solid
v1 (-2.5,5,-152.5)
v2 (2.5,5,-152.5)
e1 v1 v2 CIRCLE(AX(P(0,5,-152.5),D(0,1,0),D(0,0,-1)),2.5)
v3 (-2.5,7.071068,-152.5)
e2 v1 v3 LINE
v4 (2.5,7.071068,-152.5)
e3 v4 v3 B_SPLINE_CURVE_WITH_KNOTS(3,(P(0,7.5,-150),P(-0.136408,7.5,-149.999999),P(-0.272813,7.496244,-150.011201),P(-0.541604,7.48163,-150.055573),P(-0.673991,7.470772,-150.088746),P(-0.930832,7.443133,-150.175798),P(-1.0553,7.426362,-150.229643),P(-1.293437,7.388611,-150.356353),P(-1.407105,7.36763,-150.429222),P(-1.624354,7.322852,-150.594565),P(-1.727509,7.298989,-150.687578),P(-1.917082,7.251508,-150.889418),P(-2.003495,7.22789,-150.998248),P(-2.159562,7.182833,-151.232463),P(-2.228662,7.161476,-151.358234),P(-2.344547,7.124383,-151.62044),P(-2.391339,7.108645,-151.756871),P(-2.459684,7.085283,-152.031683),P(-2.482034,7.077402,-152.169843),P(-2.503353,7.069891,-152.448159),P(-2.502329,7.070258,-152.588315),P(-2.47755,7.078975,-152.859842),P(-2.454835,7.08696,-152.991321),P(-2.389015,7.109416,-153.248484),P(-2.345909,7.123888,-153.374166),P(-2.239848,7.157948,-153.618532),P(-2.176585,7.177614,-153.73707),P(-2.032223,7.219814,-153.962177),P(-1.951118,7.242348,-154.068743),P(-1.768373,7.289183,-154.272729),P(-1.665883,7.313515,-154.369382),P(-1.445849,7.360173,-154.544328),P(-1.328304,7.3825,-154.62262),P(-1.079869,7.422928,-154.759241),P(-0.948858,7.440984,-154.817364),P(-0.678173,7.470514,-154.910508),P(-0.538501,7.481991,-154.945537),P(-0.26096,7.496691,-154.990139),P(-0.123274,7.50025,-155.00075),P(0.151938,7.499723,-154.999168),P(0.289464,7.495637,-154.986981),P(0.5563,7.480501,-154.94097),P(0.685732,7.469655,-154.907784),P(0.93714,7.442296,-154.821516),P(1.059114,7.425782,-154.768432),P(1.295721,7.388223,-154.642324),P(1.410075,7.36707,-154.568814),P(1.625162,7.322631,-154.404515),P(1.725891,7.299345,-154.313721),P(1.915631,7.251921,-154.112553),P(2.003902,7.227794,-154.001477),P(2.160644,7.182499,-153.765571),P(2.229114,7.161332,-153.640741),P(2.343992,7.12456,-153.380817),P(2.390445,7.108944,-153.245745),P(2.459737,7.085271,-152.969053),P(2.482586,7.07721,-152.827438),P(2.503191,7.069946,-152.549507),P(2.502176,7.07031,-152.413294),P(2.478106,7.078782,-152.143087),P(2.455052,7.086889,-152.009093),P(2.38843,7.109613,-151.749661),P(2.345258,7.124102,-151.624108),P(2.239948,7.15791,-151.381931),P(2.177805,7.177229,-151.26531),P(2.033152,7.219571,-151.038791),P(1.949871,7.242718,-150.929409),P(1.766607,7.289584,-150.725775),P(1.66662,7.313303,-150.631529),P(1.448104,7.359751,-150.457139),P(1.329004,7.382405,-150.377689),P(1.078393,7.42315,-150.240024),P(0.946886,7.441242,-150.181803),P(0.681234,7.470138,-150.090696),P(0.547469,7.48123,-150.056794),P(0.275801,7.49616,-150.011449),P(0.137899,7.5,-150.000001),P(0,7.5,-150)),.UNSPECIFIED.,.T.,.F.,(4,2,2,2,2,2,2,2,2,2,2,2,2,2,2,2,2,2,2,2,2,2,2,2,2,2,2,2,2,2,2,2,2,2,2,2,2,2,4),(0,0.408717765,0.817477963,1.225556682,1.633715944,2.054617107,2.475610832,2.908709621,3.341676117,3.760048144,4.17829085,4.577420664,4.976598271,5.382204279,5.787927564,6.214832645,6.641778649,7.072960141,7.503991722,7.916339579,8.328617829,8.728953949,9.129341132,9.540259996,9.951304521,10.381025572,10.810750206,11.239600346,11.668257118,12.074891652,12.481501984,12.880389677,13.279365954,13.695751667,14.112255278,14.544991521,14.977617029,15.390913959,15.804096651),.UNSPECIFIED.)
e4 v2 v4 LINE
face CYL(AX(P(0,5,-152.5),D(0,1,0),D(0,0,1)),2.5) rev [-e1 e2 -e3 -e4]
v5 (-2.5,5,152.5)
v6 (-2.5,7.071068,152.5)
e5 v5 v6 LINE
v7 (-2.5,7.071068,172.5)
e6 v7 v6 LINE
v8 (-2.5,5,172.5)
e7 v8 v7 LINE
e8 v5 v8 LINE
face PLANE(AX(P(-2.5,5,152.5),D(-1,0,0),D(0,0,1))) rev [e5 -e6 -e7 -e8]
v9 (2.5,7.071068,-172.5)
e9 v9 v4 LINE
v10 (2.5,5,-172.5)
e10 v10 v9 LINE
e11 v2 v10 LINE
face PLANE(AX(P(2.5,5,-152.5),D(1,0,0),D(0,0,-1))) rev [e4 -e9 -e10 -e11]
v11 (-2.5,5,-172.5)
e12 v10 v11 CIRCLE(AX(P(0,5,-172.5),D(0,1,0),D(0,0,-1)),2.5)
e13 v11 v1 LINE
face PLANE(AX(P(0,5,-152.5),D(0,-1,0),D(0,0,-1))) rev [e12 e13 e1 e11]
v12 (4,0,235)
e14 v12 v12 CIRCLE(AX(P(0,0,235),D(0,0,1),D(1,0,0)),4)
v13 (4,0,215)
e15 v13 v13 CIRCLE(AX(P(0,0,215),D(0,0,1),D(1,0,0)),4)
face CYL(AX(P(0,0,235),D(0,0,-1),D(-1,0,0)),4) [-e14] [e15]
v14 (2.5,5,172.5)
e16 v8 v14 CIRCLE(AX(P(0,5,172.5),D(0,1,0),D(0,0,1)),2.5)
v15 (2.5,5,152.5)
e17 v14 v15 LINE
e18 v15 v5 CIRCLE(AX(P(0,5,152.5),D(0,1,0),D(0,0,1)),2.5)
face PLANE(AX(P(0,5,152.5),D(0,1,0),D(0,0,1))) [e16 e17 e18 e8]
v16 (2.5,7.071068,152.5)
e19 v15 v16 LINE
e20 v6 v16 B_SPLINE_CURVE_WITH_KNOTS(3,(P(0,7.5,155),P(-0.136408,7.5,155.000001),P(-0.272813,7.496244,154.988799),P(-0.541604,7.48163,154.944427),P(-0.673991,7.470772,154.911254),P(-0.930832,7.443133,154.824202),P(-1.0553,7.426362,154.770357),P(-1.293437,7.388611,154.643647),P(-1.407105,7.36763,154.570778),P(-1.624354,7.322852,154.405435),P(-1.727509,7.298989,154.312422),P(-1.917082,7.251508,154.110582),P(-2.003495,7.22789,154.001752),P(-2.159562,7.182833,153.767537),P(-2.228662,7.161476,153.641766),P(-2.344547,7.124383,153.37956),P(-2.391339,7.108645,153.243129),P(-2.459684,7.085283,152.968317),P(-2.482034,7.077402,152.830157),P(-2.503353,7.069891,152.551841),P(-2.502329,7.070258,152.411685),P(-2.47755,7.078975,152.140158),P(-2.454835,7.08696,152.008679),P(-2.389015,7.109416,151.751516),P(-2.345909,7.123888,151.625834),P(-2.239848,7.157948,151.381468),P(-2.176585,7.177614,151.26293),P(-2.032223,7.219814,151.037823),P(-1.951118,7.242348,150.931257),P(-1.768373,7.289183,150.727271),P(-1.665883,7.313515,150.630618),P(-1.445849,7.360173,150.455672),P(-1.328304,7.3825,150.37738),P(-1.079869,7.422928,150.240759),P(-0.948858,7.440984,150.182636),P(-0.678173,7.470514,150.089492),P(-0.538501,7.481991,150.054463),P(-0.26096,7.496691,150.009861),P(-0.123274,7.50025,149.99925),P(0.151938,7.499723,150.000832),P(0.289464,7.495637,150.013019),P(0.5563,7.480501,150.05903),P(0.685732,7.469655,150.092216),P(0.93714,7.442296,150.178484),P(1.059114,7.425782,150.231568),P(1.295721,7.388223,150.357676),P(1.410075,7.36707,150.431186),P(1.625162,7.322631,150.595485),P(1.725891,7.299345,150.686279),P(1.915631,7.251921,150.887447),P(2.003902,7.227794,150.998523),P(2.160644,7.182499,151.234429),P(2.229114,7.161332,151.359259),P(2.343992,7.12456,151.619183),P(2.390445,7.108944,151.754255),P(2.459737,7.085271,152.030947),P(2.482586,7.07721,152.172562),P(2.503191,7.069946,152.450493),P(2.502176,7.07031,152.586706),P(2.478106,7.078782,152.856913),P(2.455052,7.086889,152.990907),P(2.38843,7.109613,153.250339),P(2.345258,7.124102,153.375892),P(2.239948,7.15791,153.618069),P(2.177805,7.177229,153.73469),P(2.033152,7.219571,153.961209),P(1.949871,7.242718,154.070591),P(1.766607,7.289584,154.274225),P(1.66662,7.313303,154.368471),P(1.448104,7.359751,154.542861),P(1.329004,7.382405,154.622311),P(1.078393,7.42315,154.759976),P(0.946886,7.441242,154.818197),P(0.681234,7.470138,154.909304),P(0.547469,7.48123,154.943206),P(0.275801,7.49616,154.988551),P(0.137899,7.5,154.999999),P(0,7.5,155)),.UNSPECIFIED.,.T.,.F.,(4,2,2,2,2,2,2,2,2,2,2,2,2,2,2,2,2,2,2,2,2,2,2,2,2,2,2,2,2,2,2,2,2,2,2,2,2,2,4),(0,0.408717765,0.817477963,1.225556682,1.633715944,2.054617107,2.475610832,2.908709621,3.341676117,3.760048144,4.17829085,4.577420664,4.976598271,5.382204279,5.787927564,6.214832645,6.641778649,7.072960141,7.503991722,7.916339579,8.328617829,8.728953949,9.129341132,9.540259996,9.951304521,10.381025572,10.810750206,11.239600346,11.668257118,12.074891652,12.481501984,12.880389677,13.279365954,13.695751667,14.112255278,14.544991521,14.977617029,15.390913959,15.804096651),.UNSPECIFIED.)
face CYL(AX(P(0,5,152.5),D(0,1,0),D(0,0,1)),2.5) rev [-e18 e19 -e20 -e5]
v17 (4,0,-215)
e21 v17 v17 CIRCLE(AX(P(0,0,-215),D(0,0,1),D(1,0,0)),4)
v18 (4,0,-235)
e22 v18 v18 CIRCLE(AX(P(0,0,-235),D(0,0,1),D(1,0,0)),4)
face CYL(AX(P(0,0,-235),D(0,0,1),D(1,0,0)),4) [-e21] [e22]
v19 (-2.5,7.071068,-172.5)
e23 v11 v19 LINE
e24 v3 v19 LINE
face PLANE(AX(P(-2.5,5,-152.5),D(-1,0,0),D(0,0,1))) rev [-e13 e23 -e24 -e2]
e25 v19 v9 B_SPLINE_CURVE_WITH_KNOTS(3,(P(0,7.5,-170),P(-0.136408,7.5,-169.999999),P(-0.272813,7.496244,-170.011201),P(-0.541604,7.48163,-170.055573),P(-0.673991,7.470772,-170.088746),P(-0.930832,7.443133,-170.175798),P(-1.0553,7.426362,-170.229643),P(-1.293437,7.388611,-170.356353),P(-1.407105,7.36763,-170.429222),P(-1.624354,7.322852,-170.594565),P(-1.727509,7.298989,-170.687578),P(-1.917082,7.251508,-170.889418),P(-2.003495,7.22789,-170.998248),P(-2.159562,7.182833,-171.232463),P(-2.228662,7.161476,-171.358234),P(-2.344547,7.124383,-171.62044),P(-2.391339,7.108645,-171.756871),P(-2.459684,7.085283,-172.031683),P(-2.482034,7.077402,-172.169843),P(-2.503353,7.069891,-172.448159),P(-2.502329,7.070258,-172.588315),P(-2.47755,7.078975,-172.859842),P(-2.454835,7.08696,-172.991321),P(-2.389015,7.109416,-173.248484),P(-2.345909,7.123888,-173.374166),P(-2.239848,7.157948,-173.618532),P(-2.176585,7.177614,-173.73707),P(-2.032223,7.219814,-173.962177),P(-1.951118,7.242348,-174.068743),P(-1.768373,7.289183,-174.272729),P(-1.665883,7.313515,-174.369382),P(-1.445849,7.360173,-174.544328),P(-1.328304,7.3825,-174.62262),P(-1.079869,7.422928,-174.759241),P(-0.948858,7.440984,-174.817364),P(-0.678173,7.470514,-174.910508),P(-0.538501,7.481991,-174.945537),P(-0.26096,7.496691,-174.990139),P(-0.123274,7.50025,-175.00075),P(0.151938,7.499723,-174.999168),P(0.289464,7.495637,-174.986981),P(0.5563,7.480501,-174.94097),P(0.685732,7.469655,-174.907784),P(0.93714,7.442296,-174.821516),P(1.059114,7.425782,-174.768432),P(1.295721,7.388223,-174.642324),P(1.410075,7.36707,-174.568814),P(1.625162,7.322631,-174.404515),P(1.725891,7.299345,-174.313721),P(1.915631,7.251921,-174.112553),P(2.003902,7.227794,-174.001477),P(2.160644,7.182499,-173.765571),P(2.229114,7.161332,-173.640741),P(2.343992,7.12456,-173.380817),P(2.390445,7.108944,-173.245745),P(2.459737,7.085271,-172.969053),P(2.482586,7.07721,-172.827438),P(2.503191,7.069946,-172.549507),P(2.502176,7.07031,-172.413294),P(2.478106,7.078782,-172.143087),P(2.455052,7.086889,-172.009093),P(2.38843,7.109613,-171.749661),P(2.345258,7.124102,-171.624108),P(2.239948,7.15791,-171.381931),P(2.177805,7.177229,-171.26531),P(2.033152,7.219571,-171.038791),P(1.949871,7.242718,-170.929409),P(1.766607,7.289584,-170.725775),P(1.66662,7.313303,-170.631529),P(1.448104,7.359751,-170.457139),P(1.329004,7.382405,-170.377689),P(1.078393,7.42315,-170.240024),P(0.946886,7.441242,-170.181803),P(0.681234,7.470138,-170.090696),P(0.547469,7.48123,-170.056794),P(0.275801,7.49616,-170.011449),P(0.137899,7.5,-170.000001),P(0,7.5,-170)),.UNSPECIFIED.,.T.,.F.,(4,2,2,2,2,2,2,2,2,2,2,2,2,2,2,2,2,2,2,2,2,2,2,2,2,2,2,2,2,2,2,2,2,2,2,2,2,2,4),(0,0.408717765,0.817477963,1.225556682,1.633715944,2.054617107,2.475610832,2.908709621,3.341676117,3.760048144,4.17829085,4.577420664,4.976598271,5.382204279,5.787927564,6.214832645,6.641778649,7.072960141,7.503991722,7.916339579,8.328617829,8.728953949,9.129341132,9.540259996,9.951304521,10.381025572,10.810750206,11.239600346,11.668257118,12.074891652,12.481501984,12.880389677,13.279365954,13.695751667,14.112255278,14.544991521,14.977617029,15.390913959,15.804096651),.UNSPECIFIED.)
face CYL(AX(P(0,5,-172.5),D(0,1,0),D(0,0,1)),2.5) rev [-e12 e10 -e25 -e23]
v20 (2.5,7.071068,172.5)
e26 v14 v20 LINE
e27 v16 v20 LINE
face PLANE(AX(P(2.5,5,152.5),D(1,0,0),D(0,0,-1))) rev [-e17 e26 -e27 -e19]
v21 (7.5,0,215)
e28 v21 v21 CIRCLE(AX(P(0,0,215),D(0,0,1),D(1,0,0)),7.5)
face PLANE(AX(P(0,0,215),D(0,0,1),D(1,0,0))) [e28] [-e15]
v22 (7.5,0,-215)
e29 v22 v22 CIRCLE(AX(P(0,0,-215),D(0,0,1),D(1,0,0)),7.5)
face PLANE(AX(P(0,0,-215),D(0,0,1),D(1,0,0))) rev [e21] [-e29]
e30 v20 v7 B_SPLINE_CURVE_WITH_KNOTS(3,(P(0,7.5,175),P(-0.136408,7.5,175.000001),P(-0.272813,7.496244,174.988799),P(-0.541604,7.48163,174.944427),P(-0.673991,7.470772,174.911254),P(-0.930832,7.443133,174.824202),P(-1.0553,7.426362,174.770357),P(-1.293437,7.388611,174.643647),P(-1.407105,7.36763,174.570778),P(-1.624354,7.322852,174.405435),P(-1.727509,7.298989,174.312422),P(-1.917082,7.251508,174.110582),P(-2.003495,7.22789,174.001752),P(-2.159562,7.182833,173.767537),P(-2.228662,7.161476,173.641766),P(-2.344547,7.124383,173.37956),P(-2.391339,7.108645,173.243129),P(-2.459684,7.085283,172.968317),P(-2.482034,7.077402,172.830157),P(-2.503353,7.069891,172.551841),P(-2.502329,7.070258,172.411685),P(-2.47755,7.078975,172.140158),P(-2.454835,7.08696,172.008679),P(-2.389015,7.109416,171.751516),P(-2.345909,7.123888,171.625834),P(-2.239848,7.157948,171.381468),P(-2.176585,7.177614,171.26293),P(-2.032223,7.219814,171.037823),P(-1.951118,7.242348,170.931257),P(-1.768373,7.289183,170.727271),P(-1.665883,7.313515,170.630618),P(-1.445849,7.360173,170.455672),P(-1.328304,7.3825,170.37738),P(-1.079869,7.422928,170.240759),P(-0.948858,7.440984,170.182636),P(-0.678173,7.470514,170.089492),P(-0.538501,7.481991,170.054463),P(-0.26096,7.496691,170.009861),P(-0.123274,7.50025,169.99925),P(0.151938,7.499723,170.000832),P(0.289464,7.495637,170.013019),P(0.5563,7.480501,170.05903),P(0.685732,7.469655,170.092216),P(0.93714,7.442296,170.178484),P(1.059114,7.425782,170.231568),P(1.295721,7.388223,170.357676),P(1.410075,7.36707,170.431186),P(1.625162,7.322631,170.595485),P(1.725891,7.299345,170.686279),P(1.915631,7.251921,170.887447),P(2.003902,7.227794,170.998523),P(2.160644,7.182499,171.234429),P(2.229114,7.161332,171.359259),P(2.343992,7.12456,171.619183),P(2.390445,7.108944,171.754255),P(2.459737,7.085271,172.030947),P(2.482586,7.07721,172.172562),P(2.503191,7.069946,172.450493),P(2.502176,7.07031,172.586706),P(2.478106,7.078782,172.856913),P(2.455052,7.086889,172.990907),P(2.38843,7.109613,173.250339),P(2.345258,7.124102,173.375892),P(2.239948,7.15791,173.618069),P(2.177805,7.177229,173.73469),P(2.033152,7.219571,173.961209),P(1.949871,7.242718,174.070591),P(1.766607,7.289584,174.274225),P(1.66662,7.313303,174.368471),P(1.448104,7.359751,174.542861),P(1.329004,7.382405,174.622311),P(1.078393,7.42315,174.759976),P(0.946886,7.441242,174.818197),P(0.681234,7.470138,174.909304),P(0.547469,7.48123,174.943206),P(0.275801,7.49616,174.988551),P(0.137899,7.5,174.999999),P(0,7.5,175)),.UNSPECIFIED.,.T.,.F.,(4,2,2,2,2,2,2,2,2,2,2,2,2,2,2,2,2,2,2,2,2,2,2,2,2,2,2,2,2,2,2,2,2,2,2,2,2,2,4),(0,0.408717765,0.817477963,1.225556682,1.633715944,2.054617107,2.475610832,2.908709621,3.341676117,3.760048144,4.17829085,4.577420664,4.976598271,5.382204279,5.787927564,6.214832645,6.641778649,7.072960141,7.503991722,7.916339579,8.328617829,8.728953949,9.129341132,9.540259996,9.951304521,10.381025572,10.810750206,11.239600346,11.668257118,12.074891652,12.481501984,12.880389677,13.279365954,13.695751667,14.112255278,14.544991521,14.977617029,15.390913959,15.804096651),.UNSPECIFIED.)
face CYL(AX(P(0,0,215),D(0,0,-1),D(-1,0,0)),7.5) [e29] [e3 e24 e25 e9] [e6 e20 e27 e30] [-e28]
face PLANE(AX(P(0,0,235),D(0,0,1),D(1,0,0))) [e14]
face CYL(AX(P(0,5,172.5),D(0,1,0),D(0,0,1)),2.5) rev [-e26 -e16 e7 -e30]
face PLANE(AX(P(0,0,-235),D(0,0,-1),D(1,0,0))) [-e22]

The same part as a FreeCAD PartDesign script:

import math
import FreeCAD as App
import Part
import Sketcher
from FreeCAD import Vector
Q = App.Units.Quantity

doc = App.newDocument("Part")
body = doc.addObject("PartDesign::Body", "Body")

# Sketch on XY plane
sketch1 = doc.addObject("Sketcher::SketchObject", "Sketch")
body.addObject(sketch1)
sketch1.AttachmentSupport = (doc.XY_Plane, [""])
sketch1.MapMode = "FlatFace"
sketch1.addGeometry(Part.Circle(Vector(0, 0, 0), Vector(0, 0, 1), 7.5), False)
sketch1.addConstraint(Sketcher.Constraint("Coincident", 0, 3, -1, 1))
sketch1.addConstraint(Sketcher.Constraint("Diameter", 0, Q("15 mm")))
pad1 = doc.addObject("PartDesign::Pad", "Pad")
body.addObject(pad1)
pad1.Profile = sketch1
pad1.Length = 430
pad1.Midplane = True

# Sketch on XZ plane
sketch2 = doc.addObject("Sketcher::SketchObject", "Sketch001")
body.addObject(sketch2)
sketch2.AttachmentSupport = (doc.XZ_Plane, [""])
sketch2.MapMode = "FlatFace"
sketch2.AttachmentOffset = App.Placement(Vector(0, 0, -7.5), App.Rotation())
sketch2.addGeometry(Part.LineSegment(Vector(2.5, 172.5, 0), Vector(2.5, 152.5, 0)), False)
sketch2.addGeometry(Part.ArcOfCircle(Part.Circle(Vector(0, 152.5, 0), Vector(0, 0, 1), 2.5), math.radians(180), math.radians(360)), False)
sketch2.addGeometry(Part.LineSegment(Vector(-2.5, 152.5, 0), Vector(-2.5, 172.5, 0)), False)
sketch2.addGeometry(Part.ArcOfCircle(Part.Circle(Vector(0, 172.5, 0), Vector(0, 0, 1), 2.5), math.radians(0), math.radians(180)), False)
sketch2.addGeometry(Part.LineSegment(Vector(2.5, -152.5, 0), Vector(2.5, -172.5, 0)), False)
sketch2.addGeometry(Part.ArcOfCircle(Part.Circle(Vector(0, -172.5, 0), Vector(0, 0, 1), 2.5), math.radians(180), math.radians(360)), False)
sketch2.addGeometry(Part.LineSegment(Vector(-2.5, -172.5, 0), Vector(-2.5, -152.5, 0)), False)
sketch2.addGeometry(Part.ArcOfCircle(Part.Circle(Vector(0, -152.5, 0), Vector(0, 0, 1), 2.5), math.radians(0), math.radians(180)), False)
sketch2.addConstraint(Sketcher.Constraint("Tangent", 0, 2, 1, 2))
sketch2.addConstraint(Sketcher.Constraint("Tangent", 1, 1, 2, 1))
sketch2.addConstraint(Sketcher.Constraint("Tangent", 2, 2, 3, 2))
sketch2.addConstraint(Sketcher.Constraint("Tangent", 3, 1, 0, 1))
sketch2.addConstraint(Sketcher.Constraint("Tangent", 4, 2, 5, 2))
sketch2.addConstraint(Sketcher.Constraint("Tangent", 5, 1, 6, 1))
sketch2.addConstraint(Sketcher.Constraint("Tangent", 6, 2, 7, 2))
sketch2.addConstraint(Sketcher.Constraint("Tangent", 7, 1, 4, 1))
sketch2.addConstraint(Sketcher.Constraint("Vertical", 0))
sketch2.addConstraint(Sketcher.Constraint("Vertical", 2))
sketch2.addConstraint(Sketcher.Constraint("Vertical", 4))
sketch2.addConstraint(Sketcher.Constraint("Vertical", 6))
sketch2.addConstraint(Sketcher.Constraint("Equal", 3, 5))
sketch2.addConstraint(Sketcher.Constraint("Symmetric", 3, 3, 5, 3, -1, 1))
sketch2.addConstraint(Sketcher.Constraint("Symmetric", 1, 3, 7, 3, -1))
sketch2.addConstraint(Sketcher.Constraint("Radius", 1, Q("2.5 mm")))
sketch2.addConstraint(Sketcher.Constraint("DistanceY", 0, 2, 0, 1, Q("20 mm")))
sketch2.addConstraint(Sketcher.Constraint("DistanceY", 5, 3, 1, 3, Q("325 mm")))
pocket1 = doc.addObject("PartDesign::Pocket", "Pocket")
body.addObject(pocket1)
pocket1.Profile = sketch2
pocket1.Length = 2.5
pocket1.Reversed = True

# Sketch on XY plane
sketch3 = doc.addObject("Sketcher::SketchObject", "Sketch002")
body.addObject(sketch3)
sketch3.AttachmentSupport = (doc.XY_Plane, [""])
sketch3.MapMode = "FlatFace"
sketch3.AttachmentOffset = App.Placement(Vector(0, 0, 215), App.Rotation())
sketch3.addGeometry(Part.Circle(Vector(0, 0, 0), Vector(0, 0, 1), 4), False)
sketch3.addConstraint(Sketcher.Constraint("Coincident", 0, 3, -1, 1))
sketch3.addConstraint(Sketcher.Constraint("Diameter", 0, Q("8 mm")))
pad2 = doc.addObject("PartDesign::Pad", "Pad001")
body.addObject(pad2)
pad2.Profile = sketch3
pad2.Length = 20
doc.recompute()

mirrored = doc.addObject("PartDesign::Mirrored", "Mirrored")
body.addObject(mirrored)
mirrored.Originals = [pad2]
mirrored.MirrorPlane = (doc.XY_Plane, [""])
body.Tip = mirrored

doc.recompute()
